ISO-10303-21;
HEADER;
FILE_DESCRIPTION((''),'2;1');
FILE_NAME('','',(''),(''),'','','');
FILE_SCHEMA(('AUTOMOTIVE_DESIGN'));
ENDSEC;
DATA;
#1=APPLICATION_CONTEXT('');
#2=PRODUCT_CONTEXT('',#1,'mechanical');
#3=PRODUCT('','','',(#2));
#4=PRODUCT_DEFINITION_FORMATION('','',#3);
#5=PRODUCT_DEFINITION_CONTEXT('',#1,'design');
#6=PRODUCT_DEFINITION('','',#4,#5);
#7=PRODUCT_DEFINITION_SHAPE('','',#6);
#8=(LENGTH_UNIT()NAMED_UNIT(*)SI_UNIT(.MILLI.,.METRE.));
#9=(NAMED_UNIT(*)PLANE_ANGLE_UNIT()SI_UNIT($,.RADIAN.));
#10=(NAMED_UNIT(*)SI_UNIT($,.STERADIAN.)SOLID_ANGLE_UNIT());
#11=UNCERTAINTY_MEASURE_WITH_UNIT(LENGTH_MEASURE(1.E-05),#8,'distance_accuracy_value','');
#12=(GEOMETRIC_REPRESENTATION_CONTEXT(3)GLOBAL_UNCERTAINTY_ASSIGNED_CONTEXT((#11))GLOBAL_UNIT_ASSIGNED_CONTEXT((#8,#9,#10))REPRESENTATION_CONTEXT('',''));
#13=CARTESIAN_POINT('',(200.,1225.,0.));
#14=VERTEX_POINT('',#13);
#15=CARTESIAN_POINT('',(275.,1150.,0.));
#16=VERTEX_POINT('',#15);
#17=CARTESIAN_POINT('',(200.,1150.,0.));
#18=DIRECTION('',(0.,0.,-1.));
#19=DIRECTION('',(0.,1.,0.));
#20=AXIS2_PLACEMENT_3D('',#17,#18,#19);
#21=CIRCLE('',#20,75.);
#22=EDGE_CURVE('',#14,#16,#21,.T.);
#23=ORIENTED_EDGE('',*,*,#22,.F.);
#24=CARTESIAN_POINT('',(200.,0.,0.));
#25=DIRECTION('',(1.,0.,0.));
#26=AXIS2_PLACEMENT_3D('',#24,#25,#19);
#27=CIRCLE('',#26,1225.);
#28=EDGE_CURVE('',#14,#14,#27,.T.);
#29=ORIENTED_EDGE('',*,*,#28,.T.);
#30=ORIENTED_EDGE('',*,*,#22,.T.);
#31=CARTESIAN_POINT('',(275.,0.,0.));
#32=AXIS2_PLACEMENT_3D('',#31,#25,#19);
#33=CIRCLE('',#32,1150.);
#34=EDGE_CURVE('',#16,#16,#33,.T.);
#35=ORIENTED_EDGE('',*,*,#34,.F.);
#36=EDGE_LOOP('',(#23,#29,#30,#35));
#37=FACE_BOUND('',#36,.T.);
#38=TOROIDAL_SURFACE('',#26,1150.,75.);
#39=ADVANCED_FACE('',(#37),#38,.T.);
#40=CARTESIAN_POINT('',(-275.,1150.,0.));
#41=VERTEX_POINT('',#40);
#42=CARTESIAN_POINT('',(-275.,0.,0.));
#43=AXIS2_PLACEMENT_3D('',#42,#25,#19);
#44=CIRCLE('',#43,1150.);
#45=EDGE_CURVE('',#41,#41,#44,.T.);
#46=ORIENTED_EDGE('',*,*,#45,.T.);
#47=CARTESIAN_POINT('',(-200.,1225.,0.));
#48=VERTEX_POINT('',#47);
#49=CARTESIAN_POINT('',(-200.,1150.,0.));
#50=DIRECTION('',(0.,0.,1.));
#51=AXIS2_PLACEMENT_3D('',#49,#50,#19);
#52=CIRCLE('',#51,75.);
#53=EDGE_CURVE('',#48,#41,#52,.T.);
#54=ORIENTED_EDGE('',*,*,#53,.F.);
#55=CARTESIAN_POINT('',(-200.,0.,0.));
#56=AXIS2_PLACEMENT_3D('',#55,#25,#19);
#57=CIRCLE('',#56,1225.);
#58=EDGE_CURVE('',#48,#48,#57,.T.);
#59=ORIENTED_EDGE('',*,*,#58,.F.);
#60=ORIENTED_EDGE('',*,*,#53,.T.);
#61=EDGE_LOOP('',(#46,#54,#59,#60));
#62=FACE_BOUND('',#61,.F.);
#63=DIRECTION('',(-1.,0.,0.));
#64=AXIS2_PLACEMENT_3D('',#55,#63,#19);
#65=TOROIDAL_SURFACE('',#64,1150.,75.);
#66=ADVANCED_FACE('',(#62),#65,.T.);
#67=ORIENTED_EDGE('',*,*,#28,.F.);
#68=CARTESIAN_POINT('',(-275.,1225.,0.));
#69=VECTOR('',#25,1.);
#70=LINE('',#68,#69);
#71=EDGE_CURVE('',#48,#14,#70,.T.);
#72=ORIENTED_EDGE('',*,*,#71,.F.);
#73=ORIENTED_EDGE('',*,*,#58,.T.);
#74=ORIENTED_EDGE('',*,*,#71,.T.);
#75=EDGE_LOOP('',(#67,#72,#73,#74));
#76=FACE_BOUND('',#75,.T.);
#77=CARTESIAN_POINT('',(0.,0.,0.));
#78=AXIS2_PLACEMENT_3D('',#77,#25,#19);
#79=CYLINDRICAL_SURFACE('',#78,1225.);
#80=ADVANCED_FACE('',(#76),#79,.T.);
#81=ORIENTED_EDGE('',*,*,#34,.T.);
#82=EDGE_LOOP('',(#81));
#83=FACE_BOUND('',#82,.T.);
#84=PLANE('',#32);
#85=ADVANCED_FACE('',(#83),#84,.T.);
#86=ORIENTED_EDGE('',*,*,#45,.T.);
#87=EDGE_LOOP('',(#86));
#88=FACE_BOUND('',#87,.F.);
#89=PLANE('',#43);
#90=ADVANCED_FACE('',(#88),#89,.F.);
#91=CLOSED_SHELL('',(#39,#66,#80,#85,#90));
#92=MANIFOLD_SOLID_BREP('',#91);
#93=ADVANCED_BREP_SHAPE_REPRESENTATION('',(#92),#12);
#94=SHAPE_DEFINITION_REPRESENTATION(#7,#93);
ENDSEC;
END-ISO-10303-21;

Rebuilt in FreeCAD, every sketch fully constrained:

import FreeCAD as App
import Part
import Sketcher


def edges_at(feature, points):
    """Names of the edges that pass closest to the given points."""
    edges = feature.Shape.Edges
    near = lambda p: min(range(len(edges)), key=lambda i: edges[i].distToShape(Part.Vertex(*p))[0])
    return sorted({f"Edge{near(p) + 1}" for p in points})

doc = App.newDocument("Part")
body = doc.addObject("PartDesign::Body", "Body")

sketch1 = body.newObject("Sketcher::SketchObject", "Sketch")
sketch1.AttachmentSupport = (doc.getObject("XZ_Plane"), [""])
sketch1.MapMode = "FlatFace"
sketch1.addGeometry(Part.Circle(App.Vector(0, 0, 0), App.Vector(0, 0, 1), 1225), False)
sketch1.addConstraint([
    Sketcher.Constraint("Coincident", 0, 3, -1, 1),
    Sketcher.Constraint("Diameter", 0, 2450.0),
])
pad1 = body.newObject("PartDesign::Pad", "Pad")
pad1.Profile = sketch1
pad1.Length = 550
pad1.Midplane = True
doc.recompute()

fillet = body.newObject("PartDesign::Fillet", "Fillet")
fillet.Base = (pad1, edges_at(pad1, [(-1225, -275, 0), (-1225, 275, 0)]))
fillet.Radius = 75
body2 = doc.addObject("PartDesign::Body", "Body001")
doc.recompute()

body.Placement = App.Placement(App.Vector(0, 0, 0), App.Rotation(App.Vector(0, 0, 1), 90))
boolean = body2.newObject("PartDesign::Boolean", "Boolean")
boolean.Type = "Fuse"
boolean.addObjects([body])

doc.recompute()
